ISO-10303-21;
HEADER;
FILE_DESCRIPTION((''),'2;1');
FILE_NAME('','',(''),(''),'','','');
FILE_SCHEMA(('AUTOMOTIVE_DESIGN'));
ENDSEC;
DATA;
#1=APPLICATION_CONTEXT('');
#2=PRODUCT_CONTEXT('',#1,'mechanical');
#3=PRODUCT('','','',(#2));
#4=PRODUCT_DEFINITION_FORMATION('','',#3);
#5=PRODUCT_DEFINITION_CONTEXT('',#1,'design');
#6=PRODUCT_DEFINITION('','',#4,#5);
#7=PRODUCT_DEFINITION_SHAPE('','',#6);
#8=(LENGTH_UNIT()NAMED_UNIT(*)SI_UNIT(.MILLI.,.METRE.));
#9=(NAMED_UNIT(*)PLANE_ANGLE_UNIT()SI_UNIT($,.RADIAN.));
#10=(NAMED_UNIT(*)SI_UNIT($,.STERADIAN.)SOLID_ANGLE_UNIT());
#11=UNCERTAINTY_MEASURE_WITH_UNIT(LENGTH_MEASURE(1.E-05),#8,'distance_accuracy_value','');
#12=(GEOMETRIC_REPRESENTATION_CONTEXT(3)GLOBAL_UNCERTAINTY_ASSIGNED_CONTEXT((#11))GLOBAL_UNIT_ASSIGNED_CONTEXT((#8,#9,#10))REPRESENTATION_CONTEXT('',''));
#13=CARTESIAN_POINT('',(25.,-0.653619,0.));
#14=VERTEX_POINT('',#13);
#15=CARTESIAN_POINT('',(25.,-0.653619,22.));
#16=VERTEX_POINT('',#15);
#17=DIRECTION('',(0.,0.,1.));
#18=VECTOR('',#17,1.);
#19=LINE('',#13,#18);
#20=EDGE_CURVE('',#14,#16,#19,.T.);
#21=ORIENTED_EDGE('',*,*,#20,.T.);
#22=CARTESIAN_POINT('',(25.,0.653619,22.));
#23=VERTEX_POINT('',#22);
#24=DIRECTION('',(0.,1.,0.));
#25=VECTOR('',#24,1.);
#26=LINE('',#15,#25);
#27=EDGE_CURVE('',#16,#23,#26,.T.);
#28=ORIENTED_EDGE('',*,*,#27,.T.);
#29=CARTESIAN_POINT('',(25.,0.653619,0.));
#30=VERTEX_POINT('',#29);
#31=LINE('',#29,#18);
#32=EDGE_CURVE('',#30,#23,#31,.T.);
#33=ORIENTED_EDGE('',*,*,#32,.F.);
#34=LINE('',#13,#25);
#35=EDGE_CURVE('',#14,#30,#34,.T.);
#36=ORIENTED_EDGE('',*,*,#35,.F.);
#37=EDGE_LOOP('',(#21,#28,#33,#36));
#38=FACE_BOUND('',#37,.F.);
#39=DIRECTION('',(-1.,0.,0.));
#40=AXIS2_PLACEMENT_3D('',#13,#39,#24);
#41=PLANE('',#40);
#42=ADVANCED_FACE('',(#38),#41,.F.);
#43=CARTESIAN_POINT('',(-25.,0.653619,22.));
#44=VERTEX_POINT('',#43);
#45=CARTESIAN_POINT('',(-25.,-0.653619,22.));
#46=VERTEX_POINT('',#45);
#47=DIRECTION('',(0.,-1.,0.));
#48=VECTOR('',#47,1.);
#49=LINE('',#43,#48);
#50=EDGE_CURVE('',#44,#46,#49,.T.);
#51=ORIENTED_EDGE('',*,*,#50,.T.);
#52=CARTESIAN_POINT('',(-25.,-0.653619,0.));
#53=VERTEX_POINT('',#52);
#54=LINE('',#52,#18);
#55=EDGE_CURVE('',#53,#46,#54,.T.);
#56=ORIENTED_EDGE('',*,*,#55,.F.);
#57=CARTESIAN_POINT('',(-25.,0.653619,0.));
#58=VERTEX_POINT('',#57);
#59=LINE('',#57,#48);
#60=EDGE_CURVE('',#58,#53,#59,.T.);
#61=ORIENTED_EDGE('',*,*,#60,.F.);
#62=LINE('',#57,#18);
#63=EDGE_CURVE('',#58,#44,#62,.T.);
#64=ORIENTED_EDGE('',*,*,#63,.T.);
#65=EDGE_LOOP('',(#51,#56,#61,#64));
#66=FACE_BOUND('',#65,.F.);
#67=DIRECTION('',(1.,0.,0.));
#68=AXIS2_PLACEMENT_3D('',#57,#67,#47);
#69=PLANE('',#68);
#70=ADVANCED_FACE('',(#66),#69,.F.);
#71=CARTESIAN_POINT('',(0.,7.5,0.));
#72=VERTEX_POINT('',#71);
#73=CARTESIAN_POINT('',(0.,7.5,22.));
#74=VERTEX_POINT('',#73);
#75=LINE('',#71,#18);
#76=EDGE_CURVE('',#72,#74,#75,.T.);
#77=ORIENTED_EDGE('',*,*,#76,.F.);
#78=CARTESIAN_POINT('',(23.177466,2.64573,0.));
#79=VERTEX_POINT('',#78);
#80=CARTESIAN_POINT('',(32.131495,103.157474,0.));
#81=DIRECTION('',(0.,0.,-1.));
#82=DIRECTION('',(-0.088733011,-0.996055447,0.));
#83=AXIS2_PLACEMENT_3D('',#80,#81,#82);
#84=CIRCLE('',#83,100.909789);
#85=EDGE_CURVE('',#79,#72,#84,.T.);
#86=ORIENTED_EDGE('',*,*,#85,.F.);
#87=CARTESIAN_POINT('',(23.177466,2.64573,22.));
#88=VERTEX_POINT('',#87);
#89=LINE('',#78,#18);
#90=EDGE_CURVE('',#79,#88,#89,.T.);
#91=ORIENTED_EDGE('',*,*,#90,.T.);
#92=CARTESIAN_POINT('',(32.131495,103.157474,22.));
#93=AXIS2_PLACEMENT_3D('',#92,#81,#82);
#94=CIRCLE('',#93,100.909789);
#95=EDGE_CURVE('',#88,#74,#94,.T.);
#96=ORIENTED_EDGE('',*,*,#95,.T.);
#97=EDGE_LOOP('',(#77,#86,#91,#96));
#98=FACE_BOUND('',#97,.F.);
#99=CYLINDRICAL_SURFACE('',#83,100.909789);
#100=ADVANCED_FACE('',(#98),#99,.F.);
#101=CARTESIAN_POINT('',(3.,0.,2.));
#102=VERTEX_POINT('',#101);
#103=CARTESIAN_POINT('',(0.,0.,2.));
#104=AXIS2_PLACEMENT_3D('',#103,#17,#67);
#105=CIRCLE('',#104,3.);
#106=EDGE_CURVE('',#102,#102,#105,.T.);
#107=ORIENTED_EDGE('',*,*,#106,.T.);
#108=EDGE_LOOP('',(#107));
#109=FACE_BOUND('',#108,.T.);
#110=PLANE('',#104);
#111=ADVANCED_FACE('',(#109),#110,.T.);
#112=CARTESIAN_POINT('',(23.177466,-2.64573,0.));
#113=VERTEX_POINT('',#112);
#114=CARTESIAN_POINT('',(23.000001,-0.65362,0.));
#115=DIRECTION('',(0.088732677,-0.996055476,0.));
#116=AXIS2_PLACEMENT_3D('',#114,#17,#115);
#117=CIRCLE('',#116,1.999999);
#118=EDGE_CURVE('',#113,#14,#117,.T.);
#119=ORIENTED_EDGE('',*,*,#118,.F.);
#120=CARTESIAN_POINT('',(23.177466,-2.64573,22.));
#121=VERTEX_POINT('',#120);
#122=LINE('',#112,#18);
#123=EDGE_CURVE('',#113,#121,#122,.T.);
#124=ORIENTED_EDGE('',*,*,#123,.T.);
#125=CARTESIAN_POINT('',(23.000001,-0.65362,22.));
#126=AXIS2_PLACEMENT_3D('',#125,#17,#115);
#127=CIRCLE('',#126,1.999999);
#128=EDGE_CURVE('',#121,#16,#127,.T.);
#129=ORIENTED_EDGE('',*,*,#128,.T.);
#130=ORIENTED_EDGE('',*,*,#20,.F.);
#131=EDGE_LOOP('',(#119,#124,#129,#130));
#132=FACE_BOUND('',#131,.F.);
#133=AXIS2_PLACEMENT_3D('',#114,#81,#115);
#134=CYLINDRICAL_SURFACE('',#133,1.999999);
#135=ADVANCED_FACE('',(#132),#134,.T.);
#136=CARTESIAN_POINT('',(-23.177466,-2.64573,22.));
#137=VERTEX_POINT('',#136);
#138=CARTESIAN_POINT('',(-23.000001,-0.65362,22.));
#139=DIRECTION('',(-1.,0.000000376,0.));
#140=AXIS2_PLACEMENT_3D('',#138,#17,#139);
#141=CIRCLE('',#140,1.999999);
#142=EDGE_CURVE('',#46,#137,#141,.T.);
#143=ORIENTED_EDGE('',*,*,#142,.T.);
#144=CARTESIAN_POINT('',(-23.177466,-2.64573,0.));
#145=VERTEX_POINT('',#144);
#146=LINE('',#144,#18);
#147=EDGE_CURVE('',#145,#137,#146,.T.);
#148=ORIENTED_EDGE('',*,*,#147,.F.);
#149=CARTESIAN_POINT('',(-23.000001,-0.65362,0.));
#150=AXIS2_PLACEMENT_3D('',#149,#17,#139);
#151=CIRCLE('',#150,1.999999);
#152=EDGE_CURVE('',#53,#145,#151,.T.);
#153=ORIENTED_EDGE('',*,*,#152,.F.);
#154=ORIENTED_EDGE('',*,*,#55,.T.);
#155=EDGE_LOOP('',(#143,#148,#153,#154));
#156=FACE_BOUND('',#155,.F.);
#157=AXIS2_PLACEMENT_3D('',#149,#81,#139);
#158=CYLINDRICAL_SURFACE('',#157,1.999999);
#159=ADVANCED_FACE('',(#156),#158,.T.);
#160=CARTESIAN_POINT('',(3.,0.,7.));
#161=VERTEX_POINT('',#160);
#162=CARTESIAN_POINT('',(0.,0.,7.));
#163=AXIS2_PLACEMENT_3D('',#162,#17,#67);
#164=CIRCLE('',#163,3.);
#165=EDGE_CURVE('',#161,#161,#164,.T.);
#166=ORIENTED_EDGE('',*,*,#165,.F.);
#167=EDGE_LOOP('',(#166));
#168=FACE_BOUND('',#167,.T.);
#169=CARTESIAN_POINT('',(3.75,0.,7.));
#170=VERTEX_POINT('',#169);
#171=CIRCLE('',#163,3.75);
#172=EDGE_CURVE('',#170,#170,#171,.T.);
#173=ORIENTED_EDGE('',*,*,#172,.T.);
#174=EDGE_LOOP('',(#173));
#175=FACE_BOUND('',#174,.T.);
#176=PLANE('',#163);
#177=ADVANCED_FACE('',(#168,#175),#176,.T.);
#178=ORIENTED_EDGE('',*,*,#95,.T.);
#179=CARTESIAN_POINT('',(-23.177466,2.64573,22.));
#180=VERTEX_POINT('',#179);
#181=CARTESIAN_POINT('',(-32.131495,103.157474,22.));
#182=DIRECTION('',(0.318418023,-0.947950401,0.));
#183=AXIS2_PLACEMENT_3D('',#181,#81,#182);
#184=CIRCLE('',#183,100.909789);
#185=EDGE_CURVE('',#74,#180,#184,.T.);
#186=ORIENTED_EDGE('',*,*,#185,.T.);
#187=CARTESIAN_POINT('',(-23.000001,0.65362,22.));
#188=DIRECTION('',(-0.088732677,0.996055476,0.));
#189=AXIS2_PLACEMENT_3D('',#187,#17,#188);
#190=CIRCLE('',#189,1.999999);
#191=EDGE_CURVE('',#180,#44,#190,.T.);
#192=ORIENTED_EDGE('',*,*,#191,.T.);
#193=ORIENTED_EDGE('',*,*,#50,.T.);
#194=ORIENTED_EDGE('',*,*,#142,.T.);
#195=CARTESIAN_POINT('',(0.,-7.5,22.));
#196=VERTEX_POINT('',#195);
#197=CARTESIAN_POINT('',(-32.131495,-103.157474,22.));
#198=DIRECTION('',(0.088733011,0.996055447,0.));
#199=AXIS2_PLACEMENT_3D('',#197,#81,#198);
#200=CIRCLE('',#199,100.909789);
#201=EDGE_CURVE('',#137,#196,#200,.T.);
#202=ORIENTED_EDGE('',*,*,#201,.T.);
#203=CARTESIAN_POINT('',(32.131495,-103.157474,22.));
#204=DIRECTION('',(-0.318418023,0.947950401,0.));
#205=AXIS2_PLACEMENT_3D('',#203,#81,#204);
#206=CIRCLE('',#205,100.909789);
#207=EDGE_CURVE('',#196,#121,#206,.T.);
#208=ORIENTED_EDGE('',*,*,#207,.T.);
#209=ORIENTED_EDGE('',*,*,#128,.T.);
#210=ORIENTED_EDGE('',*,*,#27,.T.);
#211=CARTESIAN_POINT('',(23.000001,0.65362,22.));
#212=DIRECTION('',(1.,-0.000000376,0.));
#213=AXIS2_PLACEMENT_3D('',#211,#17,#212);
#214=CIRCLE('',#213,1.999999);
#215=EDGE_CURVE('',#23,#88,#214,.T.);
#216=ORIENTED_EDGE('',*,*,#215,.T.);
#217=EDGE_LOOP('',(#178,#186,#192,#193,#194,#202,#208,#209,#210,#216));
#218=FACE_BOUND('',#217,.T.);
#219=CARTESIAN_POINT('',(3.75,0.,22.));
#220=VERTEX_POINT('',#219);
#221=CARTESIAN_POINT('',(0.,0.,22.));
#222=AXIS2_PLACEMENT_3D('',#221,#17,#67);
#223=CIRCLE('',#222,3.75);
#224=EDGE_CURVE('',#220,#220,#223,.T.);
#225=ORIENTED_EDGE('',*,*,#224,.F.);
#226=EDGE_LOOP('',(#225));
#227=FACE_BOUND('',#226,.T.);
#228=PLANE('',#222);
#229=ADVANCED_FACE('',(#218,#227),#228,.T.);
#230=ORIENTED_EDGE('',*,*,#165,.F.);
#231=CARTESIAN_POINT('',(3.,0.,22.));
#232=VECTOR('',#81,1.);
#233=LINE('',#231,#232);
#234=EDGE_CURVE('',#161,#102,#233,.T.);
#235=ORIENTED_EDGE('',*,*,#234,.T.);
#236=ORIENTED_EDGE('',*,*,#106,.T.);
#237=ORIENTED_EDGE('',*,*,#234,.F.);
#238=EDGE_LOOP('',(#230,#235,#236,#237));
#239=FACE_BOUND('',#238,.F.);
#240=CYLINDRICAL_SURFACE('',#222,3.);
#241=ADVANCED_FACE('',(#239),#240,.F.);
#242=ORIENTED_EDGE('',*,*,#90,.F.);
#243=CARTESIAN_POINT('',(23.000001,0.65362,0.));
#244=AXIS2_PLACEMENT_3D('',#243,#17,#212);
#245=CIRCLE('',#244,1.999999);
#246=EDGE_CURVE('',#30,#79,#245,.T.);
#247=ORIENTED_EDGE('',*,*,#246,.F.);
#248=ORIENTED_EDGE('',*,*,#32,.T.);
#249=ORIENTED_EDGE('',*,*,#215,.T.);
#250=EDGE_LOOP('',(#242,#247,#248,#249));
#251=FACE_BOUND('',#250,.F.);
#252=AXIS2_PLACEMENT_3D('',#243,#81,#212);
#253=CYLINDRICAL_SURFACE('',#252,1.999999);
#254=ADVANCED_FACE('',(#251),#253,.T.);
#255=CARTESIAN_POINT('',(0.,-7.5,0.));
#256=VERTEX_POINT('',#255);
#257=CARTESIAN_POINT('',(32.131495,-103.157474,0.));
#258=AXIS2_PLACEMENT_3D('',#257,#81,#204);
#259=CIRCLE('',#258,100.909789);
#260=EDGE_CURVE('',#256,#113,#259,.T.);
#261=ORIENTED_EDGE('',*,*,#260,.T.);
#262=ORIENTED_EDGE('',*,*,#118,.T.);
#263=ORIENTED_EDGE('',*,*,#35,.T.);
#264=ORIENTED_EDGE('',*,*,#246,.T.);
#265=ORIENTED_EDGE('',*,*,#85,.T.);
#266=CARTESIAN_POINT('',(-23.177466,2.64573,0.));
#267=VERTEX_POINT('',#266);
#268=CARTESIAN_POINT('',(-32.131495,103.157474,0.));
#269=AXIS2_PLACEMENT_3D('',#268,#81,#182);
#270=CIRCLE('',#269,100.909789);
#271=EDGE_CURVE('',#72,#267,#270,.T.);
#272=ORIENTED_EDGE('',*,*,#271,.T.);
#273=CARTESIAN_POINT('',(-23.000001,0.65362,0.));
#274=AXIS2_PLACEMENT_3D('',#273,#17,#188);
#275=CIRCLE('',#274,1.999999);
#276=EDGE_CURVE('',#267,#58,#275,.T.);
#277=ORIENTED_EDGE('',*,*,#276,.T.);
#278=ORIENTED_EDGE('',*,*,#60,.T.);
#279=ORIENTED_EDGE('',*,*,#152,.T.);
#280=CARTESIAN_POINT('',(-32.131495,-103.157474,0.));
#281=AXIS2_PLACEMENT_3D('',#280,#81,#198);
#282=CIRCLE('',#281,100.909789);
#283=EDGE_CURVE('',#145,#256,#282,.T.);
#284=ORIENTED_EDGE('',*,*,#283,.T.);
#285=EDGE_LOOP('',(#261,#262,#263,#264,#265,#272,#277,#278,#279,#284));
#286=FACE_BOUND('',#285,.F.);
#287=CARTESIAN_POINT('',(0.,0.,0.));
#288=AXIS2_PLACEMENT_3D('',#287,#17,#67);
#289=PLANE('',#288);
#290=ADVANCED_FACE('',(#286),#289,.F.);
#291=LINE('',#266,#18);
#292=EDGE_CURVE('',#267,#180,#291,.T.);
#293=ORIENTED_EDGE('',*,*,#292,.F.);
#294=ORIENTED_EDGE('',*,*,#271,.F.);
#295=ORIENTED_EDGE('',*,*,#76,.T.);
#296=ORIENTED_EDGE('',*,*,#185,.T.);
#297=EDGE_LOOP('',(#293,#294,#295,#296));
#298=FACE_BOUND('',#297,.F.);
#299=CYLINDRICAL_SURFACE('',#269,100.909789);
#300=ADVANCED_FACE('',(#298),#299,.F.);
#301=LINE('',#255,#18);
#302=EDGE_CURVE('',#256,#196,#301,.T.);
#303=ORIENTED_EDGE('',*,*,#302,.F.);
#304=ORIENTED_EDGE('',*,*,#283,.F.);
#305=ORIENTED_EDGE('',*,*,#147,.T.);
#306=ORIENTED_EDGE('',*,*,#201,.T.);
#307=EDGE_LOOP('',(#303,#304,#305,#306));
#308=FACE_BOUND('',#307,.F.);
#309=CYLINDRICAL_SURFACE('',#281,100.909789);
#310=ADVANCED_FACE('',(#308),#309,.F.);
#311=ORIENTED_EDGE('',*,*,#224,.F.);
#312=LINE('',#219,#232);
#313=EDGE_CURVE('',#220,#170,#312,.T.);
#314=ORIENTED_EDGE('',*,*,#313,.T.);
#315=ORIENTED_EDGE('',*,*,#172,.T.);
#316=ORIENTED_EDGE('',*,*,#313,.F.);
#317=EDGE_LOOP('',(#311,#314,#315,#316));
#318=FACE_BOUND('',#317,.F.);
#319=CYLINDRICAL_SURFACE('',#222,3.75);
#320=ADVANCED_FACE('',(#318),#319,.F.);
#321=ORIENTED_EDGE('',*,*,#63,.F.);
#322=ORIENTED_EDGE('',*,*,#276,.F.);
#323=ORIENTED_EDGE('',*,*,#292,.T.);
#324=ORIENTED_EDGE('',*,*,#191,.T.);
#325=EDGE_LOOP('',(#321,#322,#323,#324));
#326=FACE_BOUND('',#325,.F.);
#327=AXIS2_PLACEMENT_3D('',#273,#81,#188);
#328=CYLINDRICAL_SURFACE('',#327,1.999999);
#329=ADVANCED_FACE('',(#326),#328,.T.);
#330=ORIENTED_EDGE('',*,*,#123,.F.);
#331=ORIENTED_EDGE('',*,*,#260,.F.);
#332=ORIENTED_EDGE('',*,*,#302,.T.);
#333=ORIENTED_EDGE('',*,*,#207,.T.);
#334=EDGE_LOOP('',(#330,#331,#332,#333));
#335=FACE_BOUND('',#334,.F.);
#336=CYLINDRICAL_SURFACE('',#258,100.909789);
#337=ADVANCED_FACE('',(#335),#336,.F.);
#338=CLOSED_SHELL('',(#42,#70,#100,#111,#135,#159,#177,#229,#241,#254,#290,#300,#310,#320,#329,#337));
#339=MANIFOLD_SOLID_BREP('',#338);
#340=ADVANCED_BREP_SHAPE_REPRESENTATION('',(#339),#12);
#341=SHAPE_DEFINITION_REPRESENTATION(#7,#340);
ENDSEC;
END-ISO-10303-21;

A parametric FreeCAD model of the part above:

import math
import FreeCAD as App
import Part
import Sketcher

doc = App.newDocument("Part")
body = doc.addObject("PartDesign::Body", "Body")

# Sketch on XY plane
sketch1 = body.newObject("Sketcher::SketchObject", "Sketch")
sketch1.AttachmentSupport = (doc.getObject("XY_Plane"), [""])
sketch1.MapMode = "FlatFace"
sketch1.addGeometry([
    Part.ArcOfCircle(Part.Circle(App.Vector(23, -0.7, 0), App.Vector(0, 0, 1), 2), math.radians(-85), math.radians(0)),  # 0
    Part.LineSegment(App.Vector(25, -0.7, 0), App.Vector(25, 0.7, 0)),  # 1
    Part.ArcOfCircle(Part.Circle(App.Vector(23, 0.7, 0), App.Vector(0, 0, 1), 2), math.radians(0), math.radians(85)),  # 2
    Part.ArcOfCircle(Part.Circle(App.Vector(32.1, 103.2, 0), App.Vector(0, 0, 1), 100.9), math.radians(-108.57), math.radians(-95.09)),  # 3
    Part.ArcOfCircle(Part.Circle(App.Vector(-32.1, 103.2, 0), App.Vector(0, 0, 1), 100.9), math.radians(-84.91), math.radians(-71.43)),  # 4
    Part.ArcOfCircle(Part.Circle(App.Vector(-23, 0.7, 0), App.Vector(0, 0, 1), 2), math.radians(95), math.radians(180)),  # 5
    Part.LineSegment(App.Vector(-25, 0.7, 0), App.Vector(-25, -0.7, 0)),  # 6
    Part.ArcOfCircle(Part.Circle(App.Vector(-23, -0.7, 0), App.Vector(0, 0, 1), 2), math.radians(180), math.radians(265)),  # 7
    Part.ArcOfCircle(Part.Circle(App.Vector(-32.1, -103.2, 0), App.Vector(0, 0, 1), 100.9), math.radians(71.43), math.radians(84.91)),  # 8
    Part.ArcOfCircle(Part.Circle(App.Vector(32.1, -103.2, 0), App.Vector(0, 0, 1), 100.9), math.radians(95.09), math.radians(108.57)),  # 9
], False)
sketch1.addConstraint([
    Sketcher.Constraint("Tangent", 0, 2, 1, 1),
    Sketcher.Constraint("Tangent", 1, 2, 2, 1),
    Sketcher.Constraint("Tangent", 2, 2, 3, 2),
    Sketcher.Constraint("Coincident", 3, 1, 4, 2),
    Sketcher.Constraint("Tangent", 4, 1, 5, 1),
    Sketcher.Constraint("Tangent", 5, 2, 6, 1),
    Sketcher.Constraint("Tangent", 6, 2, 7, 1),
    Sketcher.Constraint("Tangent", 7, 2, 8, 2),
    Sketcher.Constraint("Coincident", 8, 1, 9, 2),
    Sketcher.Constraint("Tangent", 9, 1, 0, 1),
    Sketcher.Constraint("Vertical", 1),
    Sketcher.Constraint("Vertical", 6),
    Sketcher.Constraint("Equal", 0, 2),
    Sketcher.Constraint("Equal", 3, 4),
    Sketcher.Constraint("Equal", 2, 5),
    Sketcher.Constraint("Equal", 5, 7),
    Sketcher.Constraint("Equal", 4, 8),
    Sketcher.Constraint("Equal", 8, 9),
    Sketcher.Constraint("Symmetric", 0, 3, 5, 3, -1, 1),
    Sketcher.Constraint("Symmetric", 3, 3, 8, 3, -1, 1),
    Sketcher.Constraint("Symmetric", 3, 3, 4, 3, -2),
    Sketcher.Constraint("PointOnObject", 8, 1, -2),
    Sketcher.Constraint("Radius", 0, 1.999999),
    Sketcher.Constraint("DistanceX", -1, 1, 0, 3, 23.000001),
    Sketcher.Constraint("DistanceY", 8, 1, 3, 1, 15.0),
    Sketcher.Constraint("Radius", 3, 100.909789),
    Sketcher.Constraint("DistanceY", 1, 1, 1, 2, 1.307238),
])
pad1 = body.newObject("PartDesign::Pad", "Pad")
pad1.Profile = sketch1
pad1.Length = 22

# Sketch on XY plane
sketch2 = body.newObject("Sketcher::SketchObject", "Sketch001")
sketch2.AttachmentSupport = (doc.getObject("XY_Plane"), [""])
sketch2.MapMode = "FlatFace"
sketch2.AttachmentOffset = App.Placement(App.Vector(0, 0, 22), App.Rotation())
sketch2.addGeometry(Part.Circle(App.Vector(0, 0, 0), App.Vector(0, 0, 1), 3), False)
sketch2.addConstraint([
    Sketcher.Constraint("Coincident", 0, 3, -1, 1),
    Sketcher.Constraint("Diameter", 0, 6.0),
])
pocket1 = body.newObject("PartDesign::Pocket", "Pocket")
pocket1.Profile = sketch2
pocket1.Length = 20

# Sketch on XY plane
sketch3 = body.newObject("Sketcher::SketchObject", "Sketch002")
sketch3.AttachmentSupport = (doc.getObject("XY_Plane"), [""])
sketch3.MapMode = "FlatFace"
sketch3.AttachmentOffset = App.Placement(App.Vector(0, 0, 22), App.Rotation())
sketch3.addGeometry([
    Part.Circle(App.Vector(0, 0, 0), App.Vector(0, 0, 1), 3.8),
    Part.Circle(App.Vector(0, 0, 0), App.Vector(0, 0, 1), 3),
], False)
sketch3.addConstraint([
    Sketcher.Constraint("Coincident", 0, 3, -1, 1),
    Sketcher.Constraint("Coincident", 1, 3, -1, 1),
    Sketcher.Constraint("Diameter", 1, 6.0),
    Sketcher.Constraint("Diameter", 0, 7.5),
])
pocket2 = body.newObject("PartDesign::Pocket", "Pocket001")
pocket2.Profile = sketch3
pocket2.Length = 15

doc.recompute()
